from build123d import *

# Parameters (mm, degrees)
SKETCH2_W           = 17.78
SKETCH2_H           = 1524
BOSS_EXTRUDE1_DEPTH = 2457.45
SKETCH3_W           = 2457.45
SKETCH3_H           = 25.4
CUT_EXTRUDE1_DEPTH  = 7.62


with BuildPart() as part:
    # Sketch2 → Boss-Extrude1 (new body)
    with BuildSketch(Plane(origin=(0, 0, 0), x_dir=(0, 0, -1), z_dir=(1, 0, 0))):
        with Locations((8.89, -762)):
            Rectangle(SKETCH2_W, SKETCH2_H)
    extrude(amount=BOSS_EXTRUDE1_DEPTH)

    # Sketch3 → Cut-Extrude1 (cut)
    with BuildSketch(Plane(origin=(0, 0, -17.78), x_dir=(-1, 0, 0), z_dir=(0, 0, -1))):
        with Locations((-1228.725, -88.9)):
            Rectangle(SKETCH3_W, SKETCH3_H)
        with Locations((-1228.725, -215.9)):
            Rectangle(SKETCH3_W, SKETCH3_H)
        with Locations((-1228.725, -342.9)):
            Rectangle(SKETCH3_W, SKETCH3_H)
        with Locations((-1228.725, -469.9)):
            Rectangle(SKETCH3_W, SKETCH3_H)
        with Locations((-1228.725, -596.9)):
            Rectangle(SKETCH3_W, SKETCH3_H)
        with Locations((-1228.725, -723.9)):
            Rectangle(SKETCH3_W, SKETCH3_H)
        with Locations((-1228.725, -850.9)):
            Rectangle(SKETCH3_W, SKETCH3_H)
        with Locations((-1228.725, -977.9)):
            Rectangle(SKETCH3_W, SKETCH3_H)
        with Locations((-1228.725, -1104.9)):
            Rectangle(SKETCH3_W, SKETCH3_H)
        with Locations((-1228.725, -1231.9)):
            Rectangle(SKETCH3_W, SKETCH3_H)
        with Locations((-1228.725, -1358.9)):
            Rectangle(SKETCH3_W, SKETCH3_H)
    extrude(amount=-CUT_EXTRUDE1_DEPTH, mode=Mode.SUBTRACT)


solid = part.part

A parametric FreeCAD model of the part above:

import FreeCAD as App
import Part
import Sketcher
from FreeCAD import Vector
Q = App.Units.Quantity


def add_polygon(sketch, points):
    """Adds a closed chain of lines whose ends are joined by coincident constraints."""
    first, n = sketch.GeometryCount, len(points)
    for a, b in zip(points, points[1:] + points[:1]):
        sketch.addGeometry(Part.LineSegment(App.Vector(*a, 0), App.Vector(*b, 0)), False)
    for i in range(n):
        sketch.addConstraint(Sketcher.Constraint("Coincident", first + i, 2, first + (i + 1) % n, 1))

doc = App.newDocument("Part")
body = doc.addObject("PartDesign::Body", "Body")

# Sketch on YZ plane
sketch1 = doc.addObject("Sketcher::SketchObject", "Sketch")
body.addObject(sketch1)
sketch1.AttachmentSupport = (doc.YZ_Plane, [""])
sketch1.MapMode = "FlatFace"
add_polygon(sketch1, [(0, 0), (-1524, 0), (-1524, -18), (0, -18)])  # lines 0-3
sketch1.addConstraint([
    Sketcher.Constraint("Horizontal", 0),
    Sketcher.Constraint("Vertical", 1),
    Sketcher.Constraint("Horizontal", 2),
    Sketcher.Constraint("Vertical", 3),
    Sketcher.Constraint("Coincident", 3, 2, -1, 1),
    Sketcher.Constraint("DistanceX", 0, 2, 0, 1, Q("60 in")),
    Sketcher.Constraint("DistanceY", 1, 2, 1, 1, Q("0.7 in")),
])
pad1 = doc.addObject("PartDesign::Pad", "Pad")
body.addObject(pad1)
pad1.Profile = sketch1
pad1.Length = Q("96.75 in")

# Sketch on XY plane
sketch2 = doc.addObject("Sketcher::SketchObject", "Sketch001")
body.addObject(sketch2)
sketch2.AttachmentSupport = (doc.XY_Plane, [""])
sketch2.MapMode = "FlatFace"
sketch2.AttachmentOffset = App.Placement(Vector(0, 0, -0.7 * 25.4), App.Rotation())
add_polygon(sketch2, [(2457, -76), (2457, -102), (0, -102), (0, -76)])  # lines 0-3
add_polygon(sketch2, [(2457, -203), (2457, -229), (0, -229), (0, -203)])  # lines 4-7
add_polygon(sketch2, [(2457, -330), (2457, -356), (0, -356), (0, -330)])  # lines 8-11
add_polygon(sketch2, [(2457, -457), (2457, -483), (0, -483), (0, -457)])  # lines 12-15
add_polygon(sketch2, [(2457, -584), (2457, -610), (0, -610), (0, -584)])  # lines 16-19
add_polygon(sketch2, [(2457, -711), (2457, -737), (0, -737), (0, -711)])  # lines 20-23
add_polygon(sketch2, [(2457, -838), (2457, -864), (0, -864), (0, -838)])  # lines 24-27
add_polygon(sketch2, [(2457, -965), (2457, -991), (0, -991), (0, -965)])  # lines 28-31
add_polygon(sketch2, [(2457, -1092), (2457, -1118), (0, -1118), (0, -1092)])  # lines 32-35
add_polygon(sketch2, [(2457, -1219), (2457, -1245), (0, -1245), (0, -1219)])  # lines 36-39
add_polygon(sketch2, [(2457, -1346), (2457, -1372), (0, -1372), (0, -1346)])  # lines 40-43
sketch2.addConstraint([
    Sketcher.Constraint("Vertical", 0),
    Sketcher.Constraint("Horizontal", 1),
    Sketcher.Constraint("Vertical", 2),
    Sketcher.Constraint("Horizontal", 3),
    Sketcher.Constraint("Vertical", 4),
    Sketcher.Constraint("Horizontal", 5),
    Sketcher.Constraint("Vertical", 6),
    Sketcher.Constraint("Horizontal", 7),
    Sketcher.Constraint("Vertical", 8),
    Sketcher.Constraint("Horizontal", 9),
    Sketcher.Constraint("Vertical", 10),
    Sketcher.Constraint("Horizontal", 11),
    Sketcher.Constraint("Vertical", 12),
    Sketcher.Constraint("Horizontal", 13),
    Sketcher.Constraint("Vertical", 14),
    Sketcher.Constraint("Horizontal", 15),
    Sketcher.Constraint("Vertical", 16),
    Sketcher.Constraint("Horizontal", 17),
    Sketcher.Constraint("Vertical", 18),
    Sketcher.Constraint("Horizontal", 19),
    Sketcher.Constraint("Vertical", 20),
    Sketcher.Constraint("Horizontal", 21),
    Sketcher.Constraint("Vertical", 22),
    Sketcher.Constraint("Horizontal", 23),
    Sketcher.Constraint("Vertical", 24),
    Sketcher.Constraint("Horizontal", 25),
    Sketcher.Constraint("Vertical", 26),
    Sketcher.Constraint("Horizontal", 27),
    Sketcher.Constraint("Vertical", 28),
    Sketcher.Constraint("Horizontal", 29),
    Sketcher.Constraint("Vertical", 30),
    Sketcher.Constraint("Horizontal", 31),
    Sketcher.Constraint("Vertical", 32),
    Sketcher.Constraint("Horizontal", 33),
    Sketcher.Constraint("Vertical", 34),
    Sketcher.Constraint("Horizontal", 35),
    Sketcher.Constraint("Vertical", 36),
    Sketcher.Constraint("Horizontal", 37),
    Sketcher.Constraint("Vertical", 38),
    Sketcher.Constraint("Horizontal", 39),
    Sketcher.Constraint("Vertical", 40),
    Sketcher.Constraint("Horizontal", 41),
    Sketcher.Constraint("Vertical", 42),
    Sketcher.Constraint("Horizontal", 43),
    Sketcher.Constraint("PointOnObject", 1, 2, -2),
    Sketcher.Constraint("PointOnObject", 5, 2, -2),
    Sketcher.Constraint("PointOnObject", 9, 2, -2),
    Sketcher.Constraint("PointOnObject", 13, 2, -2),
    Sketcher.Constraint("PointOnObject", 17, 2, -2),
    Sketcher.Constraint("PointOnObject", 21, 2, -2),
    Sketcher.Constraint("PointOnObject", 25, 2, -2),
    Sketcher.Constraint("PointOnObject", 29, 2, -2),
    Sketcher.Constraint("PointOnObject", 33, 2, -2),
    Sketcher.Constraint("PointOnObject", 37, 2, -2),
    Sketcher.Constraint("PointOnObject", 41, 2, -2),
    Sketcher.Constraint("Vertical", 3, 2, 4, 2),
    Sketcher.Constraint("Vertical", 7, 2, 8, 2),
    Sketcher.Constraint("Vertical", 11, 2, 12, 2),
    Sketcher.Constraint("Vertical", 15, 2, 16, 2),
    Sketcher.Constraint("Vertical", 19, 2, 20, 2),
    Sketcher.Constraint("Vertical", 23, 2, 24, 2),
    Sketcher.Constraint("Vertical", 27, 2, 28, 2),
    Sketcher.Constraint("Vertical", 31, 2, 32, 2),
    Sketcher.Constraint("Vertical", 35, 2, 36, 2),
    Sketcher.Constraint("Vertical", 39, 2, 40, 2),
    Sketcher.Constraint("Equal", 2, 4),
    Sketcher.Constraint("Equal", 6, 8),
    Sketcher.Constraint("Equal", 10, 12),
    Sketcher.Constraint("Equal", 14, 16),
    Sketcher.Constraint("Equal", 18, 20),
    Sketcher.Constraint("Equal", 22, 24),
    Sketcher.Constraint("Equal", 26, 28),
    Sketcher.Constraint("Equal", 30, 32),
    Sketcher.Constraint("Equal", 34, 36),
    Sketcher.Constraint("Equal", 38, 40),
    Sketcher.Constraint("DistanceY", 0, 2, 0, 1, Q("1 in")),
    Sketcher.Constraint("DistanceY", 0, 2, -1, 1, Q("4 in")),
    Sketcher.Constraint("DistanceY", 4, 2, -1, 1, Q("9 in")),
    Sketcher.Constraint("DistanceY", 8, 2, -1, 1, Q("14 in")),
    Sketcher.Constraint("DistanceY", 12, 2, -1, 1, Q("19 in")),
    Sketcher.Constraint("DistanceY", 16, 2, -1, 1, Q("24 in")),
    Sketcher.Constraint("DistanceY", 20, 2, -1, 1, Q("29 in")),
    Sketcher.Constraint("DistanceY", 24, 2, -1, 1, Q("34 in")),
    Sketcher.Constraint("DistanceY", 28, 2, -1, 1, Q("39 in")),
    Sketcher.Constraint("DistanceY", 32, 2, -1, 1, Q("44 in")),
    Sketcher.Constraint("DistanceY", 36, 2, -1, 1, Q("49 in")),
    Sketcher.Constraint("DistanceY", 40, 2, -1, 1, Q("54 in")),
    Sketcher.Constraint("DistanceX", 1, 2, 1, 1, Q("96.75 in")),
])
pocket1 = doc.addObject("PartDesign::Pocket", "Pocket")
body.addObject(pocket1)
pocket1.Profile = sketch2
pocket1.Length = Q("0.3 in")
pocket1.Reversed = True

doc.recompute()
